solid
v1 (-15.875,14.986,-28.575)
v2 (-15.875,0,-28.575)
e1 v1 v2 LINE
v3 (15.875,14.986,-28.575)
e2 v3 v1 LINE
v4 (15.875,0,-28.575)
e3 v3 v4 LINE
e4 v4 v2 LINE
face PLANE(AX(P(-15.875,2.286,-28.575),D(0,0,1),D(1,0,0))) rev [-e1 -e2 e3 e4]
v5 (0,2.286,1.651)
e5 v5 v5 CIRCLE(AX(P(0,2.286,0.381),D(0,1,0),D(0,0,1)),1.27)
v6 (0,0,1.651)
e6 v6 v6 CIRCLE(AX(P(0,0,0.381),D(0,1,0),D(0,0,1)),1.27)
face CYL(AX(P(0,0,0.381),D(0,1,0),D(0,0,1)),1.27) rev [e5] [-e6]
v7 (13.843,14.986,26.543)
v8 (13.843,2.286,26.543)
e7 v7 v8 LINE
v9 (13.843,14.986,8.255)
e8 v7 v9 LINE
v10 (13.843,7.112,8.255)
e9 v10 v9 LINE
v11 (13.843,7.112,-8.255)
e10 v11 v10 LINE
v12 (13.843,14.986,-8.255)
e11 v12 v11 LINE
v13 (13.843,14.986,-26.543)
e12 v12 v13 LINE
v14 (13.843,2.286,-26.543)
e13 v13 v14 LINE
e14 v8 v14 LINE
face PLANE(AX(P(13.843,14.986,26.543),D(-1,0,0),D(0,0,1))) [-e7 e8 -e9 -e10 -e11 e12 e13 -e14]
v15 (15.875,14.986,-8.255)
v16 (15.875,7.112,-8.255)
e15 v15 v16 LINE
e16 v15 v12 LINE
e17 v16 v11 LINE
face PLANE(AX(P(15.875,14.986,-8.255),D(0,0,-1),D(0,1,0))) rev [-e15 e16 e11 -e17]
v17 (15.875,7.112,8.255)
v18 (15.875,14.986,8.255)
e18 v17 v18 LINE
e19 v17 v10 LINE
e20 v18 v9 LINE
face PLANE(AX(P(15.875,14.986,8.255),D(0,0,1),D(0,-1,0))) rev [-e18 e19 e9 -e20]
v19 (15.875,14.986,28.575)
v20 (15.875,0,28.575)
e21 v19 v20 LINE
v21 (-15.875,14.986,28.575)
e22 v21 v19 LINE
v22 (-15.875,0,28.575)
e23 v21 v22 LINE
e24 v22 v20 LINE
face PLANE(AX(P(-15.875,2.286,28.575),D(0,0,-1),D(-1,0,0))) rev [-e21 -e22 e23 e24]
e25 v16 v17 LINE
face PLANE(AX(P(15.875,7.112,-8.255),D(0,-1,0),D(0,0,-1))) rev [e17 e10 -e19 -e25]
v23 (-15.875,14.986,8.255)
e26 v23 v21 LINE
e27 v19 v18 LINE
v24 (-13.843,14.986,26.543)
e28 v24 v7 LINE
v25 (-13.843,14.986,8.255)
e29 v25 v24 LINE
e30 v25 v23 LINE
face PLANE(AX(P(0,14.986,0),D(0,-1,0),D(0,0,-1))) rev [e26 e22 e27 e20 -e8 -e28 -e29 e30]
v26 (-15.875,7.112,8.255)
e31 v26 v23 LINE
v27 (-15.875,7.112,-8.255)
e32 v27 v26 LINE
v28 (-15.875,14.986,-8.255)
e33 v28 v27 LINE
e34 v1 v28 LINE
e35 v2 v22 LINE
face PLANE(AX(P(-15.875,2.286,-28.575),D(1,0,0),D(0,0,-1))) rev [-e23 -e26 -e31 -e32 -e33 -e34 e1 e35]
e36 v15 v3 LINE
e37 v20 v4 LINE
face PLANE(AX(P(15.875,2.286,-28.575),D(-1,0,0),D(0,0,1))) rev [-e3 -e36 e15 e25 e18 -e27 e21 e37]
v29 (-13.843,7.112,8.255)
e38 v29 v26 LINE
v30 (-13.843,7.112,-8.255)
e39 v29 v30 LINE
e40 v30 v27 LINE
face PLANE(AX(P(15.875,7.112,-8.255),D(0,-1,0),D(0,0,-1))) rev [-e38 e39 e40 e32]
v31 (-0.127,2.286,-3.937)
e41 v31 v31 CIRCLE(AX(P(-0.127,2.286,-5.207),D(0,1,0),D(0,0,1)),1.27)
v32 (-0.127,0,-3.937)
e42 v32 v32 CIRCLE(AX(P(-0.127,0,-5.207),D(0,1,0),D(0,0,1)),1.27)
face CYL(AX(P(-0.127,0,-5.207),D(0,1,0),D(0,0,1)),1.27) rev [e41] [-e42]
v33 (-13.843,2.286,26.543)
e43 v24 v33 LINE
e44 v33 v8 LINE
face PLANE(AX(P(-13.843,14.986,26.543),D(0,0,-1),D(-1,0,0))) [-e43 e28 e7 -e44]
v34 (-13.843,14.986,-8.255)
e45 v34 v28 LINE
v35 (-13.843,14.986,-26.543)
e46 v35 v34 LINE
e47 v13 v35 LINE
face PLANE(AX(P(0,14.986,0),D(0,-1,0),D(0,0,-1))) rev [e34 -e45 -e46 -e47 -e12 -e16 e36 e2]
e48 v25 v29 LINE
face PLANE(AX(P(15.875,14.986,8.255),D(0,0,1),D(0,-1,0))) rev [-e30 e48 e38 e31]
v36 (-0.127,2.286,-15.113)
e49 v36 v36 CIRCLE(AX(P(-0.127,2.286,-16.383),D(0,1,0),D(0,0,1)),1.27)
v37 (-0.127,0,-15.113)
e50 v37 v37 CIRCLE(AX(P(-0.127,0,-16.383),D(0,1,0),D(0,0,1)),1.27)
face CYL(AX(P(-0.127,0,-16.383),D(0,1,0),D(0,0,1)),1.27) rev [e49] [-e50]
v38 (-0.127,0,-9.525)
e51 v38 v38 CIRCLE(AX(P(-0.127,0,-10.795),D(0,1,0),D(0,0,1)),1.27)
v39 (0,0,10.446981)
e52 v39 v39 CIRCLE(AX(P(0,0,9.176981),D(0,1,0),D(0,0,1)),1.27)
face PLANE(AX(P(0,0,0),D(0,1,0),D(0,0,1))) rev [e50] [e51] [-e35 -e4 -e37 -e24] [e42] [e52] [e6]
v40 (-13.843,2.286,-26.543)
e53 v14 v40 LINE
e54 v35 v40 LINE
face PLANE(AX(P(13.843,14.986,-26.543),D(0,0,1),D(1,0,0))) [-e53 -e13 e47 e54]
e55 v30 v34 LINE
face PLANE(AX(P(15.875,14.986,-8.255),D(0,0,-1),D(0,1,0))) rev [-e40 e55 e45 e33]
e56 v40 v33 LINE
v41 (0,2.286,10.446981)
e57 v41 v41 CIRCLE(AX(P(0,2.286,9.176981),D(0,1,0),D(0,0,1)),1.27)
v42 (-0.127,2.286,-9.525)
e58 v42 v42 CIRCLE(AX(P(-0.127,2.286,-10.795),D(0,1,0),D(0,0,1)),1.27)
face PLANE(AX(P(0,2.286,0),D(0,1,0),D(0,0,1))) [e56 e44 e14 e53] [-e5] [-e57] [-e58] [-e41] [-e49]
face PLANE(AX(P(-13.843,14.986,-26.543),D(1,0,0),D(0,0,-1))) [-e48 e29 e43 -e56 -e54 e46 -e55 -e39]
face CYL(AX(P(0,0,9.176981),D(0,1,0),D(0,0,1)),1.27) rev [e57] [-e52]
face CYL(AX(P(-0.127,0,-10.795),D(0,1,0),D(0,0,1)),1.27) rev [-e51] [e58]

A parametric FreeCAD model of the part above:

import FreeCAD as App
import Part
import Sketcher
Q = App.Units.Quantity


def add_polygon(sketch, points):
    """Adds a closed chain of lines whose ends are joined by coincident constraints."""
    first, n = sketch.GeometryCount, len(points)
    for a, b in zip(points, points[1:] + points[:1]):
        sketch.addGeometry(Part.LineSegment(App.Vector(*a, 0), App.Vector(*b, 0)), False)
    for i in range(n):
        sketch.addConstraint(Sketcher.Constraint("Coincident", first + i, 2, first + (i + 1) % n, 1))

doc = App.newDocument("Part")
body = doc.addObject("PartDesign::Body", "Body")

# Sketch on XZ plane
sketch1 = body.newObject("Sketcher::SketchObject", "Sketch")
sketch1.AttachmentSupport = (doc.getObject("XZ_Plane"), [""])
sketch1.MapMode = "FlatFace"
add_polygon(sketch1, [(-16, -29), (-16, 29), (16, 29), (16, -29)])  # lines 0-3
sketch1.addConstraint([
    Sketcher.Constraint("Vertical", 0),
    Sketcher.Constraint("Horizontal", 1),
    Sketcher.Constraint("Vertical", 2),
    Sketcher.Constraint("Horizontal", 3),
    Sketcher.Constraint("Symmetric", 0, 2, 2, 2, -1, 1),
    Sketcher.Constraint("DistanceX", 1, 1, 1, 2, Q("1.25 in")),
    Sketcher.Constraint("DistanceY", 0, 1, 0, 2, Q("2.25 in")),
])
pad1 = body.newObject("PartDesign::Pad", "Pad")
pad1.Profile = sketch1
pad1.Length = Q("0.09 in")
pad1.Reversed = True

# Sketch on XZ plane
sketch2 = body.newObject("Sketcher::SketchObject", "Sketch001")
sketch2.AttachmentSupport = (doc.getObject("XZ_Plane"), [""])
sketch2.MapMode = "FlatFace"
sketch2.AttachmentOffset = App.Placement(App.Vector(0, 0, -0.09 * 25.4), App.Rotation())
add_polygon(sketch2, [(-16, -29), (-16, 29), (16, 29), (16, -29)])  # lines 0-3
add_polygon(sketch2, [(14, 27), (-14, 27), (-14, -27), (14, -27)])  # lines 4-7
sketch2.addConstraint([
    Sketcher.Constraint("Vertical", 0),
    Sketcher.Constraint("Horizontal", 1),
    Sketcher.Constraint("Vertical", 2),
    Sketcher.Constraint("Horizontal", 3),
    Sketcher.Constraint("Horizontal", 4),
    Sketcher.Constraint("Vertical", 5),
    Sketcher.Constraint("Horizontal", 6),
    Sketcher.Constraint("Vertical", 7),
    Sketcher.Constraint("Symmetric", 0, 2, 2, 2, -1, 1),
    Sketcher.Constraint("Symmetric", 4, 2, 6, 2, -1, 1),
    Sketcher.Constraint("DistanceX", 1, 1, 1, 2, Q("1.25 in")),
    Sketcher.Constraint("DistanceX", 4, 2, 4, 1, Q("1.09 in")),
    Sketcher.Constraint("DistanceY", 0, 1, 0, 2, Q("2.25 in")),
    Sketcher.Constraint("DistanceY", 5, 2, 5, 1, Q("2.09 in")),
])
pad2 = body.newObject("PartDesign::Pad", "Pad001")
pad2.Profile = sketch2
pad2.Length = Q("0.5 in")
pad2.Reversed = True

# Sketch on XZ plane
sketch3 = body.newObject("Sketcher::SketchObject", "Sketch002")
sketch3.AttachmentSupport = (doc.getObject("XZ_Plane"), [""])
sketch3.MapMode = "FlatFace"
sketch3.AttachmentOffset = App.Placement(App.Vector(0, 0, -0.09 * 25.4), App.Rotation())
sketch3.addGeometry([
    Part.Circle(App.Vector(-0.1, -16.4, 0), App.Vector(0, 0, 1), 1.3),  # 0
    Part.Circle(App.Vector(-0.1, -10.8, 0), App.Vector(0, 0, 1), 1.3),  # 1
    Part.Circle(App.Vector(-0.1, -5.2, 0), App.Vector(0, 0, 1), 1.3),  # 2
    Part.Circle(App.Vector(0, 0.4, 0), App.Vector(0, 0, 1), 1.3),  # 3
    Part.Circle(App.Vector(0, 9.2, 0), App.Vector(0, 0, 1), 1.3),  # 4
], False)
sketch3.addConstraint([
    Sketcher.Constraint("Equal", 0, 1),
    Sketcher.Constraint("Equal", 1, 2),
    Sketcher.Constraint("Equal", 2, 3),
    Sketcher.Constraint("Equal", 3, 4),
    Sketcher.Constraint("PointOnObject", 3, 3, -2),
    Sketcher.Constraint("PointOnObject", 4, 3, -2),
    Sketcher.Constraint("Vertical", 0, 3, 1, 3),
    Sketcher.Constraint("Vertical", 1, 3, 2, 3),
    Sketcher.Constraint("Diameter", 0, Q("0.1 in")),
    Sketcher.Constraint("DistanceY", 0, 3, 1, 3, Q("0.22 in")),
    Sketcher.Constraint("DistanceY", 1, 3, 2, 3, Q("0.22 in")),
    Sketcher.Constraint("DistanceY", 2, 3, 3, 3, Q("0.22 in")),
    Sketcher.Constraint("DistanceX", 0, 3, -1, 1, Q("0.005 in")),
    Sketcher.Constraint("DistanceY", 0, 3, -1, 1, Q("0.645 in")),
    Sketcher.Constraint("DistanceY", -1, 1, 4, 3, 9.176981),
])
pocket1 = body.newObject("PartDesign::Pocket", "Pocket")
pocket1.Profile = sketch3
pocket1.Type = "ThroughAll"
pocket1.Reversed = True

# Sketch on YZ plane
sketch4 = body.newObject("Sketcher::SketchObject", "Sketch003")
sketch4.AttachmentSupport = (doc.getObject("YZ_Plane"), [""])
sketch4.MapMode = "FlatFace"
sketch4.AttachmentOffset = App.Placement(App.Vector(0, 0, -0.625 * 25.4), App.Rotation())
add_polygon(sketch4, [(15, -8), (7, -8), (7, 8), (15, 8)])  # lines 0-3
sketch4.addConstraint([
    Sketcher.Constraint("Horizontal", 0),
    Sketcher.Constraint("Vertical", 1),
    Sketcher.Constraint("Horizontal", 2),
    Sketcher.Constraint("Vertical", 3),
    Sketcher.Constraint("DistanceX", 0, 2, 0, 1, Q("0.31 in")),
    Sketcher.Constraint("DistanceY", 1, 1, 1, 2, Q("0.65 in")),
    Sketcher.Constraint("DistanceX", -1, 1, 0, 2, Q("0.28 in")),
    Sketcher.Constraint("DistanceY", 0, 2, -1, 1, Q("0.325 in")),
])
pocket2 = body.newObject("PartDesign::Pocket", "Pocket001")
pocket2.Profile = sketch4
pocket2.Type = "ThroughAll"
pocket2.Reversed = True

doc.recompute()
